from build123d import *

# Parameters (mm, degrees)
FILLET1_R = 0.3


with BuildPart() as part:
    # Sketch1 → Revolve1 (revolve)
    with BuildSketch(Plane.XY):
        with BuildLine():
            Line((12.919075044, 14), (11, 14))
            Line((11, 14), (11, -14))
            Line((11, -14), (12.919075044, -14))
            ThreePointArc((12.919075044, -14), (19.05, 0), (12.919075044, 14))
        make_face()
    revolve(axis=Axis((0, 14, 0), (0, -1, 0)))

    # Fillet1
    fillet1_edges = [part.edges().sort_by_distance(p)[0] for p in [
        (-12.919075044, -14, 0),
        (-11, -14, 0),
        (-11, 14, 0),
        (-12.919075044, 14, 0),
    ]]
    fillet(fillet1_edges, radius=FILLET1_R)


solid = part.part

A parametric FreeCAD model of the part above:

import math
import FreeCAD as App
import Part
import Sketcher
Q = App.Units.Quantity


def edges_at(feature, points):
    """Names of the edges that pass closest to the given points."""
    edges = feature.Shape.Edges
    near = lambda p: min(range(len(edges)), key=lambda i: edges[i].distToShape(Part.Vertex(*p))[0])
    return sorted({f"Edge{near(p) + 1}" for p in points})

doc = App.newDocument("Part")
params = doc.addObject("Spreadsheet::Sheet", "Params")
for row, (alias, value) in enumerate([
    ("sketch1_height", "28 mm"),
    ("sketch1_radius", "19.05 mm"),
    ("revolution_angle", "360 deg"),
    ("fillet_radius", "0.3 mm"),
], start=1):
    params.set(f"A{row}", alias)
    params.set(f"B{row}", "=" + value)
    params.setAlias(f"B{row}", alias)

body = doc.addObject("PartDesign::Body", "Body")

# Sketch on XY plane
sketch1 = doc.addObject("Sketcher::SketchObject", "Sketch")
body.addObject(sketch1)
sketch1.AttachmentSupport = (doc.XY_Plane, [""])
sketch1.MapMode = "FlatFace"
sketch1.addGeometry([
    Part.LineSegment(App.Vector(12.919075, 14, 0), App.Vector(11, 14, 0)),
    Part.LineSegment(App.Vector(11, 14, 0), App.Vector(11, -14, 0)),
    Part.LineSegment(App.Vector(11, -14, 0), App.Vector(12.919075, -14, 0)),
    Part.ArcOfCircle(Part.Circle(App.Vector(0, 0, 0), App.Vector(0, 0, 1), 19.05), math.radians(-47.299454), math.radians(47.299454)),
], False)
sketch1.addConstraint([
    Sketcher.Constraint("Coincident", 0, 2, 1, 1),
    Sketcher.Constraint("Coincident", 1, 2, 2, 1),
    Sketcher.Constraint("Coincident", 2, 2, 3, 1),
    Sketcher.Constraint("Coincident", 3, 2, 0, 1),
    Sketcher.Constraint("Horizontal", 0),
    Sketcher.Constraint("Vertical", 1),
    Sketcher.Constraint("Horizontal", 2),
    Sketcher.Constraint("Coincident", 3, 3, -1, 1),
    Sketcher.Constraint("Vertical", 2, 2, 3, 2),
    Sketcher.Constraint("DistanceY", 1, 2, 1, 1, Q("28 mm")),
    Sketcher.Constraint("Radius", 3, Q("19.05 mm")),
    Sketcher.Constraint("DistanceX", -1, 1, 0, 2, Q("11 mm")),
])
sketch1.setExpression("Constraints[9]", "Params.sketch1_height")
sketch1.setExpression("Constraints[10]", "Params.sketch1_radius")
revolution = doc.addObject("PartDesign::Revolution", "Revolution")
body.addObject(revolution)
revolution.Profile = sketch1
revolution.ReferenceAxis = (sketch1, ["V_Axis"])
revolution.setExpression("Angle", "Params.revolution_angle")
doc.recompute()

fillet = doc.addObject("PartDesign::Fillet", "Fillet")
body.addObject(fillet)
fillet.Base = (revolution, edges_at(revolution, [
    (-12.919, -14, 0),
    (-11, -14, 0),
    (-11, 14, 0),
    (-12.919, 14, 0),
]))
fillet.setExpression("Radius", "Params.fillet_radius")

doc.recompute()
